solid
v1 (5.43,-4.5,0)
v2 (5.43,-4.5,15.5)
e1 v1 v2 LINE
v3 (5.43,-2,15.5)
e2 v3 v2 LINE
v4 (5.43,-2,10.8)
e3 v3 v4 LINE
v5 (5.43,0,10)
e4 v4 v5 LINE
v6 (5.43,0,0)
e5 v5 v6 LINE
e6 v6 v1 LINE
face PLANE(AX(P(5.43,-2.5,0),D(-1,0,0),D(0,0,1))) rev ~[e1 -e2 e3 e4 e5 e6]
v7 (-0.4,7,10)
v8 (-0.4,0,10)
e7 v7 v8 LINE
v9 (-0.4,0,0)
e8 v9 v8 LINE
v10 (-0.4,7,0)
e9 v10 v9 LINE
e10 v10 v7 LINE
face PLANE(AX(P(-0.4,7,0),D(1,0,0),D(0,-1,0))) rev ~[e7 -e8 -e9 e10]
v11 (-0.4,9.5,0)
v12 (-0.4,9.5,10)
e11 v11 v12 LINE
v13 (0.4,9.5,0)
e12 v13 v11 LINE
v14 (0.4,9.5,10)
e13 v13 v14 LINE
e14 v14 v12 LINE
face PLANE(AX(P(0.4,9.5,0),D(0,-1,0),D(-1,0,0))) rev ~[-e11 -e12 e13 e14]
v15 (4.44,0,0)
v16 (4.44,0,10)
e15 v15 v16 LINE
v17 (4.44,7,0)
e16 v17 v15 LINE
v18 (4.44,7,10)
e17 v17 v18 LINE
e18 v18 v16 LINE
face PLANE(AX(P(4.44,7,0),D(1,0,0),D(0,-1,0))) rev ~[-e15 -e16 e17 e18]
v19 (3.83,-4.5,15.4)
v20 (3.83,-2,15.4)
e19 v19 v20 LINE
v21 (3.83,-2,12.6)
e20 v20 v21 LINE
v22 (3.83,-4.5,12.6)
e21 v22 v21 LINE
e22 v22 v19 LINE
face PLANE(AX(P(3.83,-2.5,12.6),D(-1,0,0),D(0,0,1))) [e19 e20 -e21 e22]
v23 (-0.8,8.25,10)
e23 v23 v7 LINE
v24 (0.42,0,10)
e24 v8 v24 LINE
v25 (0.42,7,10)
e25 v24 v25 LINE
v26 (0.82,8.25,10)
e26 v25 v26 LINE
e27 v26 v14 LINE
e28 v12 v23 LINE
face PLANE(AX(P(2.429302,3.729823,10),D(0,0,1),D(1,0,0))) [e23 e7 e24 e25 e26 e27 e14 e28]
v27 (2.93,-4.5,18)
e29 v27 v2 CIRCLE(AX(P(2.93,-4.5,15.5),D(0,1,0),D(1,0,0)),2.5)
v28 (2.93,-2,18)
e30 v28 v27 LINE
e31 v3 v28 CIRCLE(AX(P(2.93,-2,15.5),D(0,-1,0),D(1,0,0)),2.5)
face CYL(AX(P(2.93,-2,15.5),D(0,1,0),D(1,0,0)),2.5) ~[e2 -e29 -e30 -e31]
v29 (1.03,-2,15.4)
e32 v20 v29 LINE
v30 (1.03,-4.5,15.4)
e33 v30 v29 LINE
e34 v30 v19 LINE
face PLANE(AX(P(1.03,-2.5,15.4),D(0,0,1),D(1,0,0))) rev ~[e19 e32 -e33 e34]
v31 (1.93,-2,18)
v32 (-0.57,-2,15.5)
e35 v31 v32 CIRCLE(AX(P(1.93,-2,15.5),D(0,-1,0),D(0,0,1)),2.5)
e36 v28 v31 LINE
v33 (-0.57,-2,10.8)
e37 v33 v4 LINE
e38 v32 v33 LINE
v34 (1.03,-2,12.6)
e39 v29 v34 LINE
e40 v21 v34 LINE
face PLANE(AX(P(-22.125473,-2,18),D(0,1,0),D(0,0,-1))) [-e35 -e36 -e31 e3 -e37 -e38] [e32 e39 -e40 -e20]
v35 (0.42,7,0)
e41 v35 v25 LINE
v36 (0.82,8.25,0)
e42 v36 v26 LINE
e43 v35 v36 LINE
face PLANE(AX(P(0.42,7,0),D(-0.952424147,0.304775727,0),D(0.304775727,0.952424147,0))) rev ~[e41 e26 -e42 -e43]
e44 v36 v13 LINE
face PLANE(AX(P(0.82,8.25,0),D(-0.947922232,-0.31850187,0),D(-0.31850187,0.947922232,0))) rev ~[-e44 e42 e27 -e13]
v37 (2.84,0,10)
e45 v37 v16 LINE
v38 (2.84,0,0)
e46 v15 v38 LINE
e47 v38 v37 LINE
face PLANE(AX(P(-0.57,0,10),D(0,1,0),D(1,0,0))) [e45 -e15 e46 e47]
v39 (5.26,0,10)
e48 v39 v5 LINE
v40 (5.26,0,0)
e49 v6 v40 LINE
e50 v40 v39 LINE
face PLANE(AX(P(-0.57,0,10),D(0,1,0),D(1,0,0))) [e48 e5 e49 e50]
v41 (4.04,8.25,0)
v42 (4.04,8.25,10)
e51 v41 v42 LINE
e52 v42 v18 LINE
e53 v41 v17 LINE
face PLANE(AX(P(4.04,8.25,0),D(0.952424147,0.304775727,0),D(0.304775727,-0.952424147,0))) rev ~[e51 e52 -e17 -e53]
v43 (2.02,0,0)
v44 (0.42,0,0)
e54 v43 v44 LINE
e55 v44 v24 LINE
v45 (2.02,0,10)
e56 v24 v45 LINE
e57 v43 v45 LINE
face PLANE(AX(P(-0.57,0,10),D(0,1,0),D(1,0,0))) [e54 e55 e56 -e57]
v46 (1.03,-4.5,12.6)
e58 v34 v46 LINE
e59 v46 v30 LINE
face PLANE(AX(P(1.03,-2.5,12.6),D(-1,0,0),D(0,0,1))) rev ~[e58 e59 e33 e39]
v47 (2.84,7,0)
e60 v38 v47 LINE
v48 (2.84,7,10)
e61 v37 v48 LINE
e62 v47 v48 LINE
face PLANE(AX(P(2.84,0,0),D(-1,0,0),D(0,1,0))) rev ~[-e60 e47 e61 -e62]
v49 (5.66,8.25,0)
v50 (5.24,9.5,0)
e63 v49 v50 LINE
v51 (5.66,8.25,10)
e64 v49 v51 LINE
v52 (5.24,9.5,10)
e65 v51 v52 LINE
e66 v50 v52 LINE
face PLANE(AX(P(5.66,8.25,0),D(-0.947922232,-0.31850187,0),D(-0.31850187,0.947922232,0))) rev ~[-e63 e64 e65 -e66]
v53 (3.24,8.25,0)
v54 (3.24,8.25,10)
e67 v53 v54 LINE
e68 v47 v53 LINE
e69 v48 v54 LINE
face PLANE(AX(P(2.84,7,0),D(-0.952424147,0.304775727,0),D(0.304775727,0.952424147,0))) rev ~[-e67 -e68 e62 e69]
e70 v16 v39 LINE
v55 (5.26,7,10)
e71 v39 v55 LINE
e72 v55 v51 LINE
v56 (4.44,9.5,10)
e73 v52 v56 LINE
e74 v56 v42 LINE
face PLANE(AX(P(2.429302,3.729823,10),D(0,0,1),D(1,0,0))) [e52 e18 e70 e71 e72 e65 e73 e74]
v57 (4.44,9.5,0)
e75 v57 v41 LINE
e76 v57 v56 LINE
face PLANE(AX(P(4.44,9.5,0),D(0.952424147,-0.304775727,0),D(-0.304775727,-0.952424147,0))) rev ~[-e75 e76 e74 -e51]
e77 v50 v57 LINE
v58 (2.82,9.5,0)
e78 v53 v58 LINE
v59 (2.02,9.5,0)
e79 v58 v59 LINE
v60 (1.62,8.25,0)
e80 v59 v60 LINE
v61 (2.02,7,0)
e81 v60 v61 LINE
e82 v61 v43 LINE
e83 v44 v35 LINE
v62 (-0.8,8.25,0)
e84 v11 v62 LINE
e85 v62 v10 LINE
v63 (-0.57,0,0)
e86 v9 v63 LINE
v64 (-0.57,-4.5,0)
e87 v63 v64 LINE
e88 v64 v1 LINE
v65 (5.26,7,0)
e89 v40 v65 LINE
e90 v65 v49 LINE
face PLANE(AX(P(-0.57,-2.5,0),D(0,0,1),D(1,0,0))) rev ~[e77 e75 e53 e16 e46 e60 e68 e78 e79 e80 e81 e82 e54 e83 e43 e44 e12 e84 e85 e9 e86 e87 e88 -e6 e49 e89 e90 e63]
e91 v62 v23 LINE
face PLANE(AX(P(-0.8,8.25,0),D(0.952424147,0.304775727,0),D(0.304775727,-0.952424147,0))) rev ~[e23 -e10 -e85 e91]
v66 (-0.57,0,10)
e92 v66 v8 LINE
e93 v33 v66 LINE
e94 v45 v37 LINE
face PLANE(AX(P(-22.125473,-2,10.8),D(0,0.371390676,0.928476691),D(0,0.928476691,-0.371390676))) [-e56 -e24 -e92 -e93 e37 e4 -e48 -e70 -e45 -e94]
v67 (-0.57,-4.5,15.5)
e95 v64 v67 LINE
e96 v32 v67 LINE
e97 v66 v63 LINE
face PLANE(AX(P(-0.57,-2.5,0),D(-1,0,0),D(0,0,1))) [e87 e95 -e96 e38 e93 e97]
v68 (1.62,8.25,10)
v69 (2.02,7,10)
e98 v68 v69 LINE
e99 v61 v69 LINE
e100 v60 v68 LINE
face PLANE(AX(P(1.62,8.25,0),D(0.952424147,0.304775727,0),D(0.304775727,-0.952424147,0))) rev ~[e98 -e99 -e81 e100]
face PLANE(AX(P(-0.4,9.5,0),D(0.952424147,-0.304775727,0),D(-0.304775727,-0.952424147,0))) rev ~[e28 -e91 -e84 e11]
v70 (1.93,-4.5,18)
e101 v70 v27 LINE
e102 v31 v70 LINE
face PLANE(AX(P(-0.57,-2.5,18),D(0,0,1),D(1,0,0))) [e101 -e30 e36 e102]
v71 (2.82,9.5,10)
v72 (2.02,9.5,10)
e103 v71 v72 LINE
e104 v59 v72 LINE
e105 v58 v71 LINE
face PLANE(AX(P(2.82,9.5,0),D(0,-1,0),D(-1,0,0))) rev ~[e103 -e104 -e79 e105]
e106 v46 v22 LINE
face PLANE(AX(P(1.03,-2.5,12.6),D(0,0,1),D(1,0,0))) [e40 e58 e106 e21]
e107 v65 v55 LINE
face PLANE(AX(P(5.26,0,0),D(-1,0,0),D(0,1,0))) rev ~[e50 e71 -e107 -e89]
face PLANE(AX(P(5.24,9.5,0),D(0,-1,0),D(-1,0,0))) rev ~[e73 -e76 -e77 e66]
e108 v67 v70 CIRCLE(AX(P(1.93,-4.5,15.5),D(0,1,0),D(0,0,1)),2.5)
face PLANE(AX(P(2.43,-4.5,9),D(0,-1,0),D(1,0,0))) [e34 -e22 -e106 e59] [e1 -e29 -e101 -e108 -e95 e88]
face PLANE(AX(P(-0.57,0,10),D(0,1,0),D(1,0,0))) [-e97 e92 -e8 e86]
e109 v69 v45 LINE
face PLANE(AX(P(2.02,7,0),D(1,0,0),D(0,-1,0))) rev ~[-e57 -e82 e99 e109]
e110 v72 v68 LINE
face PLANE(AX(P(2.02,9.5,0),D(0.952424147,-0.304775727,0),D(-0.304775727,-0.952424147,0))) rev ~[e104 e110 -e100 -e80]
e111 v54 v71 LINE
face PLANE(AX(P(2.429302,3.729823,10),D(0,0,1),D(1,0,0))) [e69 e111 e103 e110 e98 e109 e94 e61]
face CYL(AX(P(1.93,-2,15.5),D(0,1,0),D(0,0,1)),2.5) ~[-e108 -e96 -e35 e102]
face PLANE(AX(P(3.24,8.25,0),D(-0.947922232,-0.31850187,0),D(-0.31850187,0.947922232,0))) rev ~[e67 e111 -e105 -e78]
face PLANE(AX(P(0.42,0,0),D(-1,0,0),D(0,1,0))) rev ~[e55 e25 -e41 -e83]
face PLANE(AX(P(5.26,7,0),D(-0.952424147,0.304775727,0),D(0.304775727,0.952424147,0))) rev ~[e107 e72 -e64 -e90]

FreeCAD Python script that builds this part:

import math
import FreeCAD as App
import Part
import Sketcher
from FreeCAD import Vector
Q = App.Units.Quantity

doc = App.newDocument("Part")
body = doc.addObject("PartDesign::Body", "Body")

# Sketch on XY plane
sketch1 = doc.addObject("Sketcher::SketchObject", "Sketch")
body.addObject(sketch1)
sketch1.AttachmentSupport = (doc.XY_Plane, [""])
sketch1.MapMode = "FlatFace"
sketch1.addGeometry([
    Part.LineSegment(Vector(-0.4, 0, 0), Vector(-0.57, 0, 0)),  # 0
    Part.LineSegment(Vector(-0.57, 0, 0), Vector(-0.57, -2.5, 0)),  # 1
    Part.LineSegment(Vector(-0.57, -2.5, 0), Vector(5.43, -2.5, 0)),  # 2
    Part.LineSegment(Vector(5.43, -2.5, 0), Vector(5.43, 0, 0)),  # 3
    Part.LineSegment(Vector(5.43, 0, 0), Vector(5.26, 0, 0)),  # 4
    Part.LineSegment(Vector(5.26, 0, 0), Vector(5.26, 7, 0)),  # 5
    Part.LineSegment(Vector(5.26, 7, 0), Vector(5.66, 8.25, 0)),  # 6
    Part.LineSegment(Vector(5.66, 8.25, 0), Vector(5.24, 9.5, 0)),  # 7
    Part.LineSegment(Vector(5.24, 9.5, 0), Vector(4.44, 9.5, 0)),  # 8
    Part.LineSegment(Vector(4.44, 9.5, 0), Vector(4.04, 8.25, 0)),  # 9
    Part.LineSegment(Vector(4.04, 8.25, 0), Vector(4.44, 7, 0)),  # 10
    Part.LineSegment(Vector(4.44, 7, 0), Vector(4.44, 0, 0)),  # 11
    Part.LineSegment(Vector(4.44, 0, 0), Vector(2.84, 0, 0)),  # 12
    Part.LineSegment(Vector(2.84, 0, 0), Vector(2.84, 7, 0)),  # 13
    Part.LineSegment(Vector(2.84, 7, 0), Vector(3.24, 8.25, 0)),  # 14
    Part.LineSegment(Vector(3.24, 8.25, 0), Vector(2.82, 9.5, 0)),  # 15
    Part.LineSegment(Vector(2.82, 9.5, 0), Vector(2.02, 9.5, 0)),  # 16
    Part.LineSegment(Vector(2.02, 9.5, 0), Vector(1.62, 8.25, 0)),  # 17
    Part.LineSegment(Vector(1.62, 8.25, 0), Vector(2.02, 7, 0)),  # 18
    Part.LineSegment(Vector(2.02, 7, 0), Vector(2.02, 0, 0)),  # 19
    Part.LineSegment(Vector(2.02, 0, 0), Vector(0.42, 0, 0)),  # 20
    Part.LineSegment(Vector(0.42, 0, 0), Vector(0.42, 7, 0)),  # 21
    Part.LineSegment(Vector(0.42, 7, 0), Vector(0.82, 8.25, 0)),  # 22
    Part.LineSegment(Vector(0.82, 8.25, 0), Vector(0.4, 9.5, 0)),  # 23
    Part.LineSegment(Vector(0.4, 9.5, 0), Vector(-0.4, 9.5, 0)),  # 24
    Part.LineSegment(Vector(-0.4, 9.5, 0), Vector(-0.8, 8.25, 0)),  # 25
    Part.LineSegment(Vector(-0.8, 8.25, 0), Vector(-0.4, 7, 0)),  # 26
    Part.LineSegment(Vector(-0.4, 7, 0), Vector(-0.4, 0, 0)),  # 27
], False)
sketch1.addConstraint([
    Sketcher.Constraint("Coincident", 0, 2, 1, 1),
    Sketcher.Constraint("Coincident", 1, 2, 2, 1),
    Sketcher.Constraint("Coincident", 2, 2, 3, 1),
    Sketcher.Constraint("Coincident", 3, 2, 4, 1),
    Sketcher.Constraint("Coincident", 4, 2, 5, 1),
    Sketcher.Constraint("Coincident", 5, 2, 6, 1),
    Sketcher.Constraint("Coincident", 6, 2, 7, 1),
    Sketcher.Constraint("Coincident", 7, 2, 8, 1),
    Sketcher.Constraint("Coincident", 8, 2, 9, 1),
    Sketcher.Constraint("Coincident", 9, 2, 10, 1),
    Sketcher.Constraint("Coincident", 10, 2, 11, 1),
    Sketcher.Constraint("Coincident", 11, 2, 12, 1),
    Sketcher.Constraint("Coincident", 12, 2, 13, 1),
    Sketcher.Constraint("Coincident", 13, 2, 14, 1),
    Sketcher.Constraint("Coincident", 14, 2, 15, 1),
    Sketcher.Constraint("Coincident", 15, 2, 16, 1),
    Sketcher.Constraint("Coincident", 16, 2, 17, 1),
    Sketcher.Constraint("Coincident", 17, 2, 18, 1),
    Sketcher.Constraint("Coincident", 18, 2, 19, 1),
    Sketcher.Constraint("Coincident", 19, 2, 20, 1),
    Sketcher.Constraint("Coincident", 20, 2, 21, 1),
    Sketcher.Constraint("Coincident", 21, 2, 22, 1),
    Sketcher.Constraint("Coincident", 22, 2, 23, 1),
    Sketcher.Constraint("Coincident", 23, 2, 24, 1),
    Sketcher.Constraint("Coincident", 24, 2, 25, 1),
    Sketcher.Constraint("Coincident", 25, 2, 26, 1),
    Sketcher.Constraint("Coincident", 26, 2, 27, 1),
    Sketcher.Constraint("Coincident", 27, 2, 0, 1),
    Sketcher.Constraint("Horizontal", 0),
    Sketcher.Constraint("Vertical", 1),
    Sketcher.Constraint("Horizontal", 2),
    Sketcher.Constraint("Vertical", 3),
    Sketcher.Constraint("Horizontal", 4),
    Sketcher.Constraint("Vertical", 5),
    Sketcher.Constraint("Horizontal", 8),
    Sketcher.Constraint("Vertical", 11),
    Sketcher.Constraint("Horizontal", 12),
    Sketcher.Constraint("Vertical", 13),
    Sketcher.Constraint("Horizontal", 16),
    Sketcher.Constraint("Vertical", 19),
    Sketcher.Constraint("Horizontal", 20),
    Sketcher.Constraint("Vertical", 21),
    Sketcher.Constraint("Horizontal", 24),
    Sketcher.Constraint("Vertical", 27),
    Sketcher.Constraint("PointOnObject", 0, 2, -1),
    Sketcher.Constraint("PointOnObject", 3, 2, -1),
    Sketcher.Constraint("PointOnObject", 11, 2, -1),
    Sketcher.Constraint("PointOnObject", 19, 2, -1),
    Sketcher.Constraint("Parallel", 6, 9),
    Sketcher.Constraint("Parallel", 9, 14),
    Sketcher.Constraint("Parallel", 7, 15),
    Sketcher.Constraint("Parallel", 14, 17),
    Sketcher.Constraint("Parallel", 10, 18),
    Sketcher.Constraint("Parallel", 17, 22),
    Sketcher.Constraint("Parallel", 15, 23),
    Sketcher.Constraint("Parallel", 22, 25),
    Sketcher.Constraint("Parallel", 18, 26),
    Sketcher.Constraint("Horizontal", 6, 2, 9, 2),
    Sketcher.Constraint("Horizontal", 5, 2, 10, 2),
    Sketcher.Constraint("Horizontal", 10, 2, 13, 2),
    Sketcher.Constraint("Horizontal", 9, 2, 14, 2),
    Sketcher.Constraint("Horizontal", 8, 2, 15, 2),
    Sketcher.Constraint("Horizontal", 14, 2, 17, 2),
    Sketcher.Constraint("Horizontal", 13, 2, 18, 2),
    Sketcher.Constraint("Horizontal", 18, 2, 21, 2),
    Sketcher.Constraint("Horizontal", 17, 2, 22, 2),
    Sketcher.Constraint("Horizontal", 16, 2, 23, 2),
    Sketcher.Constraint("Horizontal", 22, 2, 25, 2),
    Sketcher.Constraint("Horizontal", 21, 2, 26, 2),
    Sketcher.Constraint("Vertical", 8, 2, 10, 2),
    Sketcher.Constraint("Equal", 0, 4),
    Sketcher.Constraint("Equal", 8, 16),
    Sketcher.Constraint("Equal", 12, 20),
    Sketcher.Constraint("Equal", 16, 24),
    Sketcher.Constraint("Equal", 6, 9),
    Sketcher.Constraint("DistanceX", 2, 1, 2, 2, Q("6 mm")),
    Sketcher.Constraint("DistanceY", 5, 1, 5, 2, Q("7 mm")),
    Sketcher.Constraint("DistanceX", 8, 2, 8, 1, Q("0.8 mm")),
    Sketcher.Constraint("DistanceX", 12, 2, 12, 1, Q("1.6 mm")),
    Sketcher.Constraint("DistanceY", 1, 2, 1, 1, Q("2.5 mm")),
    Sketcher.Constraint("DistanceX", 14, 2, 7, 2, Q("2 mm")),
    Sketcher.Constraint("DistanceX", 0, 2, 0, 1, Q("0.17 mm")),
    Sketcher.Constraint("DistanceY", -1, 1, 7, 2, Q("9.5 mm")),
    Sketcher.Constraint("DistanceX", -1, 1, 23, 2, Q("0.4 mm")),
])
pad1 = doc.addObject("PartDesign::Pad", "Pad")
body.addObject(pad1)
pad1.Profile = sketch1
pad1.Length = 10

# Sketch on XY plane
sketch2 = doc.addObject("Sketcher::SketchObject", "Sketch001")
body.addObject(sketch2)
sketch2.AttachmentSupport = (doc.XY_Plane, [""])
sketch2.MapMode = "FlatFace"
sketch2.AttachmentOffset = App.Placement(Vector(0, 0, 10), App.Rotation())
sketch2.addGeometry([
    Part.LineSegment(Vector(-0.57, 0, 0), Vector(-0.57, -2.5, 0)),
    Part.LineSegment(Vector(-0.57, -2.5, 0), Vector(5.43, -2.5, 0)),
    Part.LineSegment(Vector(5.43, -2.5, 0), Vector(5.43, 0, 0)),
    Part.LineSegment(Vector(5.43, 0, 0), Vector(-0.57, 0, 0)),
], False)
sketch2.addConstraint([
    Sketcher.Constraint("Coincident", 0, 2, 1, 1),
    Sketcher.Constraint("Coincident", 1, 2, 2, 1),
    Sketcher.Constraint("Coincident", 2, 2, 3, 1),
    Sketcher.Constraint("Coincident", 3, 2, 0, 1),
    Sketcher.Constraint("Vertical", 0),
    Sketcher.Constraint("Horizontal", 1),
    Sketcher.Constraint("Vertical", 2),
    Sketcher.Constraint("Horizontal", 3),
    Sketcher.Constraint("PointOnObject", 2, 2, -1),
    Sketcher.Constraint("DistanceX", 1, 1, 1, 2, Q("6 mm")),
    Sketcher.Constraint("DistanceY", 0, 2, 0, 1, Q("2.5 mm")),
    Sketcher.Constraint("DistanceX", 0, 2, -1, 1, Q("0.57 mm")),
])
pad2 = doc.addObject("PartDesign::Pad", "Pad001")
body.addObject(pad2)
pad2.Profile = sketch2
pad2.Length = 8

# Sketch on XZ plane
sketch3 = doc.addObject("Sketcher::SketchObject", "Sketch002")
body.addObject(sketch3)
sketch3.AttachmentSupport = (doc.XZ_Plane, [""])
sketch3.MapMode = "FlatFace"
sketch3.AttachmentOffset = App.Placement(Vector(0, 0, 2.5), App.Rotation())
sketch3.addGeometry([
    Part.LineSegment(Vector(1.03, 15.4, 0), Vector(1.03, 12.6, 0)),
    Part.LineSegment(Vector(1.03, 12.6, 0), Vector(3.83, 12.6, 0)),
    Part.LineSegment(Vector(3.83, 12.6, 0), Vector(3.83, 15.4, 0)),
    Part.LineSegment(Vector(3.83, 15.4, 0), Vector(1.03, 15.4, 0)),
], False)
sketch3.addConstraint([
    Sketcher.Constraint("Coincident", 0, 2, 1, 1),
    Sketcher.Constraint("Coincident", 1, 2, 2, 1),
    Sketcher.Constraint("Coincident", 2, 2, 3, 1),
    Sketcher.Constraint("Coincident", 3, 2, 0, 1),
    Sketcher.Constraint("Vertical", 0),
    Sketcher.Constraint("Horizontal", 1),
    Sketcher.Constraint("Vertical", 2),
    Sketcher.Constraint("Horizontal", 3),
    Sketcher.Constraint("Equal", 3, 0),
    Sketcher.Constraint("DistanceX", 1, 1, 1, 2, Q("2.8 mm")),
    Sketcher.Constraint("DistanceY", -1, 1, 0, 2, Q("12.6 mm")),
    Sketcher.Constraint("DistanceX", -1, 1, 0, 2, Q("1.03 mm")),
])
pocket1 = doc.addObject("PartDesign::Pocket", "Pocket")
body.addObject(pocket1)
pocket1.Profile = sketch3
pocket1.Type = "ThroughAll"

# Sketch on XZ plane
sketch4 = doc.addObject("Sketcher::SketchObject", "Sketch003")
body.addObject(sketch4)
sketch4.AttachmentSupport = (doc.XZ_Plane, [""])
sketch4.MapMode = "FlatFace"
sketch4.AttachmentOffset = App.Placement(Vector(0, 0, 2.5), App.Rotation())
sketch4.addGeometry([
    Part.LineSegment(Vector(-0.57, 18, 0), Vector(-0.57, 0, 0)),  # 0
    Part.LineSegment(Vector(-0.57, 0, 0), Vector(5.43, 0, 0)),  # 1
    Part.LineSegment(Vector(5.43, 0, 0), Vector(5.43, 18, 0)),  # 2
    Part.LineSegment(Vector(5.43, 18, 0), Vector(-0.57, 18, 0)),  # 3
    Part.LineSegment(Vector(3.83, 12.6, 0), Vector(1.03, 12.6, 0)),  # 4
    Part.LineSegment(Vector(1.03, 12.6, 0), Vector(1.03, 15.4, 0)),  # 5
    Part.LineSegment(Vector(1.03, 15.4, 0), Vector(3.83, 15.4, 0)),  # 6
    Part.LineSegment(Vector(3.83, 15.4, 0), Vector(3.83, 12.6, 0)),  # 7
], False)
sketch4.addConstraint([
    Sketcher.Constraint("Coincident", 0, 2, 1, 1),
    Sketcher.Constraint("Coincident", 1, 2, 2, 1),
    Sketcher.Constraint("Coincident", 2, 2, 3, 1),
    Sketcher.Constraint("Coincident", 3, 2, 0, 1),
    Sketcher.Constraint("Coincident", 4, 2, 5, 1),
    Sketcher.Constraint("Coincident", 5, 2, 6, 1),
    Sketcher.Constraint("Coincident", 6, 2, 7, 1),
    Sketcher.Constraint("Coincident", 7, 2, 4, 1),
    Sketcher.Constraint("Vertical", 0),
    Sketcher.Constraint("Horizontal", 1),
    Sketcher.Constraint("Vertical", 2),
    Sketcher.Constraint("Horizontal", 3),
    Sketcher.Constraint("Horizontal", 4),
    Sketcher.Constraint("Vertical", 5),
    Sketcher.Constraint("Horizontal", 6),
    Sketcher.Constraint("Vertical", 7),
    Sketcher.Constraint("PointOnObject", 0, 2, -1),
    Sketcher.Constraint("Equal", 6, 5),
    Sketcher.Constraint("DistanceX", 1, 1, 1, 2, Q("6 mm")),
    Sketcher.Constraint("DistanceY", 0, 2, 0, 1, Q("18 mm")),
    Sketcher.Constraint("DistanceX", 4, 2, 4, 1, Q("2.8 mm")),
    Sketcher.Constraint("DistanceY", -1, 1, 4, 2, Q("12.6 mm")),
    Sketcher.Constraint("DistanceX", 3, 2, 4, 2, Q("1.6 mm")),
    Sketcher.Constraint("DistanceX", 0, 2, -1, 1, Q("0.57 mm")),
])
pad3 = doc.addObject("PartDesign::Pad", "Pad002")
body.addObject(pad3)
pad3.Profile = sketch4
pad3.Length = 2

# Sketch on YZ plane
sketch5 = doc.addObject("Sketcher::SketchObject", "Sketch004")
body.addObject(sketch5)
sketch5.AttachmentSupport = (doc.YZ_Plane, [""])
sketch5.MapMode = "FlatFace"
sketch5.addGeometry([
    Part.LineSegment(Vector(0, 18, 0), Vector(-2, 18, 0)),
    Part.LineSegment(Vector(-2, 18, 0), Vector(-2, 10.8, 0)),
    Part.LineSegment(Vector(-2, 10.8, 0), Vector(0, 10, 0)),
    Part.LineSegment(Vector(0, 10, 0), Vector(0, 18, 0)),
], False)
sketch5.addConstraint([
    Sketcher.Constraint("Coincident", 0, 2, 1, 1),
    Sketcher.Constraint("Coincident", 1, 2, 2, 1),
    Sketcher.Constraint("Coincident", 2, 2, 3, 1),
    Sketcher.Constraint("Coincident", 3, 2, 0, 1),
    Sketcher.Constraint("Horizontal", 0),
    Sketcher.Constraint("Vertical", 1),
    Sketcher.Constraint("Vertical", 3),
    Sketcher.Constraint("PointOnObject", 2, 2, -2),
    Sketcher.Constraint("DistanceX", 0, 2, 0, 1, Q("2 mm")),
    Sketcher.Constraint("DistanceY", 3, 1, 3, 2, Q("8 mm")),
    Sketcher.Constraint("DistanceY", 1, 2, 1, 1, Q("7.2 mm")),
    Sketcher.Constraint("DistanceY", -1, 1, 0, 2, Q("18 mm")),
])
pocket2 = doc.addObject("PartDesign::Pocket", "Pocket001")
body.addObject(pocket2)
pocket2.Profile = sketch5
pocket2.Type = "ThroughAll"
pocket2.Midplane = True

# Sketch on XZ plane
sketch6 = doc.addObject("Sketcher::SketchObject", "Sketch005")
body.addObject(sketch6)
sketch6.AttachmentSupport = (doc.XZ_Plane, [""])
sketch6.MapMode = "FlatFace"
sketch6.AttachmentOffset = App.Placement(Vector(0, 0, 2), App.Rotation())
sketch6.addGeometry([
    Part.LineSegment(Vector(-0.57, 15.5, 0), Vector(-3.321312, 15.5, 0)),  # 0
    Part.LineSegment(Vector(-3.321312, 15.5, 0), Vector(-3.321312, 18.857639, 0)),  # 1
    Part.LineSegment(Vector(-3.321312, 18.857639, 0), Vector(8.546862, 18.857639, 0)),  # 2
    Part.LineSegment(Vector(8.546862, 18.857639, 0), Vector(8.546862, 15.5, 0)),  # 3
    Part.LineSegment(Vector(8.546862, 15.5, 0), Vector(5.43, 15.5, 0)),  # 4
    Part.ArcOfCircle(Part.Circle(Vector(2.93, 15.5, 0), Vector(0, 0, 1), 2.5), math.radians(0), math.radians(90)),  # 5
    Part.LineSegment(Vector(2.93, 18, 0), Vector(1.93, 18, 0)),  # 6
    Part.ArcOfCircle(Part.Circle(Vector(1.93, 15.5, 0), Vector(0, 0, 1), 2.5), math.radians(90), math.radians(180)),  # 7
], False)
sketch6.addConstraint([
    Sketcher.Constraint("Coincident", 0, 2, 1, 1),
    Sketcher.Constraint("Coincident", 1, 2, 2, 1),
    Sketcher.Constraint("Coincident", 2, 2, 3, 1),
    Sketcher.Constraint("Coincident", 3, 2, 4, 1),
    Sketcher.Constraint("Coincident", 4, 2, 5, 1),
    Sketcher.Constraint("Tangent", 5, 2, 6, 1),
    Sketcher.Constraint("Tangent", 6, 2, 7, 1),
    Sketcher.Constraint("Coincident", 7, 2, 0, 1),
    Sketcher.Constraint("Horizontal", 0),
    Sketcher.Constraint("Vertical", 1),
    Sketcher.Constraint("Horizontal", 2),
    Sketcher.Constraint("Vertical", 3),
    Sketcher.Constraint("Horizontal", 4),
    Sketcher.Constraint("Horizontal", 6),
    Sketcher.Constraint("Equal", 5, 7),
    Sketcher.Constraint("Horizontal", 7, 3, 0, 2),
    Sketcher.Constraint("Horizontal", 0, 2, 3, 2),
    Sketcher.Constraint("Radius", 5, Q("2.5 mm")),
    Sketcher.Constraint("DistanceX", 6, 2, 6, 1, Q("1 mm")),
    Sketcher.Constraint("DistanceY", -1, 1, 5, 2, Q("18 mm")),
    Sketcher.Constraint("DistanceX", -1, 1, 5, 3, Q("2.93 mm")),
    Sketcher.Constraint("DistanceX", 4, 2, 4, 1, Q("3.116862 mm")),
    Sketcher.Constraint("DistanceY", 1, 1, 1, 2, Q("3.357639 mm")),
    Sketcher.Constraint("DistanceX", 0, 2, 0, 1, Q("2.751312 mm")),
])
pocket3 = doc.addObject("PartDesign::Pocket", "Pocket002")
body.addObject(pocket3)
pocket3.Profile = sketch6
pocket3.Type = "ThroughAll"
pocket3.Reversed = True

doc.recompute()
